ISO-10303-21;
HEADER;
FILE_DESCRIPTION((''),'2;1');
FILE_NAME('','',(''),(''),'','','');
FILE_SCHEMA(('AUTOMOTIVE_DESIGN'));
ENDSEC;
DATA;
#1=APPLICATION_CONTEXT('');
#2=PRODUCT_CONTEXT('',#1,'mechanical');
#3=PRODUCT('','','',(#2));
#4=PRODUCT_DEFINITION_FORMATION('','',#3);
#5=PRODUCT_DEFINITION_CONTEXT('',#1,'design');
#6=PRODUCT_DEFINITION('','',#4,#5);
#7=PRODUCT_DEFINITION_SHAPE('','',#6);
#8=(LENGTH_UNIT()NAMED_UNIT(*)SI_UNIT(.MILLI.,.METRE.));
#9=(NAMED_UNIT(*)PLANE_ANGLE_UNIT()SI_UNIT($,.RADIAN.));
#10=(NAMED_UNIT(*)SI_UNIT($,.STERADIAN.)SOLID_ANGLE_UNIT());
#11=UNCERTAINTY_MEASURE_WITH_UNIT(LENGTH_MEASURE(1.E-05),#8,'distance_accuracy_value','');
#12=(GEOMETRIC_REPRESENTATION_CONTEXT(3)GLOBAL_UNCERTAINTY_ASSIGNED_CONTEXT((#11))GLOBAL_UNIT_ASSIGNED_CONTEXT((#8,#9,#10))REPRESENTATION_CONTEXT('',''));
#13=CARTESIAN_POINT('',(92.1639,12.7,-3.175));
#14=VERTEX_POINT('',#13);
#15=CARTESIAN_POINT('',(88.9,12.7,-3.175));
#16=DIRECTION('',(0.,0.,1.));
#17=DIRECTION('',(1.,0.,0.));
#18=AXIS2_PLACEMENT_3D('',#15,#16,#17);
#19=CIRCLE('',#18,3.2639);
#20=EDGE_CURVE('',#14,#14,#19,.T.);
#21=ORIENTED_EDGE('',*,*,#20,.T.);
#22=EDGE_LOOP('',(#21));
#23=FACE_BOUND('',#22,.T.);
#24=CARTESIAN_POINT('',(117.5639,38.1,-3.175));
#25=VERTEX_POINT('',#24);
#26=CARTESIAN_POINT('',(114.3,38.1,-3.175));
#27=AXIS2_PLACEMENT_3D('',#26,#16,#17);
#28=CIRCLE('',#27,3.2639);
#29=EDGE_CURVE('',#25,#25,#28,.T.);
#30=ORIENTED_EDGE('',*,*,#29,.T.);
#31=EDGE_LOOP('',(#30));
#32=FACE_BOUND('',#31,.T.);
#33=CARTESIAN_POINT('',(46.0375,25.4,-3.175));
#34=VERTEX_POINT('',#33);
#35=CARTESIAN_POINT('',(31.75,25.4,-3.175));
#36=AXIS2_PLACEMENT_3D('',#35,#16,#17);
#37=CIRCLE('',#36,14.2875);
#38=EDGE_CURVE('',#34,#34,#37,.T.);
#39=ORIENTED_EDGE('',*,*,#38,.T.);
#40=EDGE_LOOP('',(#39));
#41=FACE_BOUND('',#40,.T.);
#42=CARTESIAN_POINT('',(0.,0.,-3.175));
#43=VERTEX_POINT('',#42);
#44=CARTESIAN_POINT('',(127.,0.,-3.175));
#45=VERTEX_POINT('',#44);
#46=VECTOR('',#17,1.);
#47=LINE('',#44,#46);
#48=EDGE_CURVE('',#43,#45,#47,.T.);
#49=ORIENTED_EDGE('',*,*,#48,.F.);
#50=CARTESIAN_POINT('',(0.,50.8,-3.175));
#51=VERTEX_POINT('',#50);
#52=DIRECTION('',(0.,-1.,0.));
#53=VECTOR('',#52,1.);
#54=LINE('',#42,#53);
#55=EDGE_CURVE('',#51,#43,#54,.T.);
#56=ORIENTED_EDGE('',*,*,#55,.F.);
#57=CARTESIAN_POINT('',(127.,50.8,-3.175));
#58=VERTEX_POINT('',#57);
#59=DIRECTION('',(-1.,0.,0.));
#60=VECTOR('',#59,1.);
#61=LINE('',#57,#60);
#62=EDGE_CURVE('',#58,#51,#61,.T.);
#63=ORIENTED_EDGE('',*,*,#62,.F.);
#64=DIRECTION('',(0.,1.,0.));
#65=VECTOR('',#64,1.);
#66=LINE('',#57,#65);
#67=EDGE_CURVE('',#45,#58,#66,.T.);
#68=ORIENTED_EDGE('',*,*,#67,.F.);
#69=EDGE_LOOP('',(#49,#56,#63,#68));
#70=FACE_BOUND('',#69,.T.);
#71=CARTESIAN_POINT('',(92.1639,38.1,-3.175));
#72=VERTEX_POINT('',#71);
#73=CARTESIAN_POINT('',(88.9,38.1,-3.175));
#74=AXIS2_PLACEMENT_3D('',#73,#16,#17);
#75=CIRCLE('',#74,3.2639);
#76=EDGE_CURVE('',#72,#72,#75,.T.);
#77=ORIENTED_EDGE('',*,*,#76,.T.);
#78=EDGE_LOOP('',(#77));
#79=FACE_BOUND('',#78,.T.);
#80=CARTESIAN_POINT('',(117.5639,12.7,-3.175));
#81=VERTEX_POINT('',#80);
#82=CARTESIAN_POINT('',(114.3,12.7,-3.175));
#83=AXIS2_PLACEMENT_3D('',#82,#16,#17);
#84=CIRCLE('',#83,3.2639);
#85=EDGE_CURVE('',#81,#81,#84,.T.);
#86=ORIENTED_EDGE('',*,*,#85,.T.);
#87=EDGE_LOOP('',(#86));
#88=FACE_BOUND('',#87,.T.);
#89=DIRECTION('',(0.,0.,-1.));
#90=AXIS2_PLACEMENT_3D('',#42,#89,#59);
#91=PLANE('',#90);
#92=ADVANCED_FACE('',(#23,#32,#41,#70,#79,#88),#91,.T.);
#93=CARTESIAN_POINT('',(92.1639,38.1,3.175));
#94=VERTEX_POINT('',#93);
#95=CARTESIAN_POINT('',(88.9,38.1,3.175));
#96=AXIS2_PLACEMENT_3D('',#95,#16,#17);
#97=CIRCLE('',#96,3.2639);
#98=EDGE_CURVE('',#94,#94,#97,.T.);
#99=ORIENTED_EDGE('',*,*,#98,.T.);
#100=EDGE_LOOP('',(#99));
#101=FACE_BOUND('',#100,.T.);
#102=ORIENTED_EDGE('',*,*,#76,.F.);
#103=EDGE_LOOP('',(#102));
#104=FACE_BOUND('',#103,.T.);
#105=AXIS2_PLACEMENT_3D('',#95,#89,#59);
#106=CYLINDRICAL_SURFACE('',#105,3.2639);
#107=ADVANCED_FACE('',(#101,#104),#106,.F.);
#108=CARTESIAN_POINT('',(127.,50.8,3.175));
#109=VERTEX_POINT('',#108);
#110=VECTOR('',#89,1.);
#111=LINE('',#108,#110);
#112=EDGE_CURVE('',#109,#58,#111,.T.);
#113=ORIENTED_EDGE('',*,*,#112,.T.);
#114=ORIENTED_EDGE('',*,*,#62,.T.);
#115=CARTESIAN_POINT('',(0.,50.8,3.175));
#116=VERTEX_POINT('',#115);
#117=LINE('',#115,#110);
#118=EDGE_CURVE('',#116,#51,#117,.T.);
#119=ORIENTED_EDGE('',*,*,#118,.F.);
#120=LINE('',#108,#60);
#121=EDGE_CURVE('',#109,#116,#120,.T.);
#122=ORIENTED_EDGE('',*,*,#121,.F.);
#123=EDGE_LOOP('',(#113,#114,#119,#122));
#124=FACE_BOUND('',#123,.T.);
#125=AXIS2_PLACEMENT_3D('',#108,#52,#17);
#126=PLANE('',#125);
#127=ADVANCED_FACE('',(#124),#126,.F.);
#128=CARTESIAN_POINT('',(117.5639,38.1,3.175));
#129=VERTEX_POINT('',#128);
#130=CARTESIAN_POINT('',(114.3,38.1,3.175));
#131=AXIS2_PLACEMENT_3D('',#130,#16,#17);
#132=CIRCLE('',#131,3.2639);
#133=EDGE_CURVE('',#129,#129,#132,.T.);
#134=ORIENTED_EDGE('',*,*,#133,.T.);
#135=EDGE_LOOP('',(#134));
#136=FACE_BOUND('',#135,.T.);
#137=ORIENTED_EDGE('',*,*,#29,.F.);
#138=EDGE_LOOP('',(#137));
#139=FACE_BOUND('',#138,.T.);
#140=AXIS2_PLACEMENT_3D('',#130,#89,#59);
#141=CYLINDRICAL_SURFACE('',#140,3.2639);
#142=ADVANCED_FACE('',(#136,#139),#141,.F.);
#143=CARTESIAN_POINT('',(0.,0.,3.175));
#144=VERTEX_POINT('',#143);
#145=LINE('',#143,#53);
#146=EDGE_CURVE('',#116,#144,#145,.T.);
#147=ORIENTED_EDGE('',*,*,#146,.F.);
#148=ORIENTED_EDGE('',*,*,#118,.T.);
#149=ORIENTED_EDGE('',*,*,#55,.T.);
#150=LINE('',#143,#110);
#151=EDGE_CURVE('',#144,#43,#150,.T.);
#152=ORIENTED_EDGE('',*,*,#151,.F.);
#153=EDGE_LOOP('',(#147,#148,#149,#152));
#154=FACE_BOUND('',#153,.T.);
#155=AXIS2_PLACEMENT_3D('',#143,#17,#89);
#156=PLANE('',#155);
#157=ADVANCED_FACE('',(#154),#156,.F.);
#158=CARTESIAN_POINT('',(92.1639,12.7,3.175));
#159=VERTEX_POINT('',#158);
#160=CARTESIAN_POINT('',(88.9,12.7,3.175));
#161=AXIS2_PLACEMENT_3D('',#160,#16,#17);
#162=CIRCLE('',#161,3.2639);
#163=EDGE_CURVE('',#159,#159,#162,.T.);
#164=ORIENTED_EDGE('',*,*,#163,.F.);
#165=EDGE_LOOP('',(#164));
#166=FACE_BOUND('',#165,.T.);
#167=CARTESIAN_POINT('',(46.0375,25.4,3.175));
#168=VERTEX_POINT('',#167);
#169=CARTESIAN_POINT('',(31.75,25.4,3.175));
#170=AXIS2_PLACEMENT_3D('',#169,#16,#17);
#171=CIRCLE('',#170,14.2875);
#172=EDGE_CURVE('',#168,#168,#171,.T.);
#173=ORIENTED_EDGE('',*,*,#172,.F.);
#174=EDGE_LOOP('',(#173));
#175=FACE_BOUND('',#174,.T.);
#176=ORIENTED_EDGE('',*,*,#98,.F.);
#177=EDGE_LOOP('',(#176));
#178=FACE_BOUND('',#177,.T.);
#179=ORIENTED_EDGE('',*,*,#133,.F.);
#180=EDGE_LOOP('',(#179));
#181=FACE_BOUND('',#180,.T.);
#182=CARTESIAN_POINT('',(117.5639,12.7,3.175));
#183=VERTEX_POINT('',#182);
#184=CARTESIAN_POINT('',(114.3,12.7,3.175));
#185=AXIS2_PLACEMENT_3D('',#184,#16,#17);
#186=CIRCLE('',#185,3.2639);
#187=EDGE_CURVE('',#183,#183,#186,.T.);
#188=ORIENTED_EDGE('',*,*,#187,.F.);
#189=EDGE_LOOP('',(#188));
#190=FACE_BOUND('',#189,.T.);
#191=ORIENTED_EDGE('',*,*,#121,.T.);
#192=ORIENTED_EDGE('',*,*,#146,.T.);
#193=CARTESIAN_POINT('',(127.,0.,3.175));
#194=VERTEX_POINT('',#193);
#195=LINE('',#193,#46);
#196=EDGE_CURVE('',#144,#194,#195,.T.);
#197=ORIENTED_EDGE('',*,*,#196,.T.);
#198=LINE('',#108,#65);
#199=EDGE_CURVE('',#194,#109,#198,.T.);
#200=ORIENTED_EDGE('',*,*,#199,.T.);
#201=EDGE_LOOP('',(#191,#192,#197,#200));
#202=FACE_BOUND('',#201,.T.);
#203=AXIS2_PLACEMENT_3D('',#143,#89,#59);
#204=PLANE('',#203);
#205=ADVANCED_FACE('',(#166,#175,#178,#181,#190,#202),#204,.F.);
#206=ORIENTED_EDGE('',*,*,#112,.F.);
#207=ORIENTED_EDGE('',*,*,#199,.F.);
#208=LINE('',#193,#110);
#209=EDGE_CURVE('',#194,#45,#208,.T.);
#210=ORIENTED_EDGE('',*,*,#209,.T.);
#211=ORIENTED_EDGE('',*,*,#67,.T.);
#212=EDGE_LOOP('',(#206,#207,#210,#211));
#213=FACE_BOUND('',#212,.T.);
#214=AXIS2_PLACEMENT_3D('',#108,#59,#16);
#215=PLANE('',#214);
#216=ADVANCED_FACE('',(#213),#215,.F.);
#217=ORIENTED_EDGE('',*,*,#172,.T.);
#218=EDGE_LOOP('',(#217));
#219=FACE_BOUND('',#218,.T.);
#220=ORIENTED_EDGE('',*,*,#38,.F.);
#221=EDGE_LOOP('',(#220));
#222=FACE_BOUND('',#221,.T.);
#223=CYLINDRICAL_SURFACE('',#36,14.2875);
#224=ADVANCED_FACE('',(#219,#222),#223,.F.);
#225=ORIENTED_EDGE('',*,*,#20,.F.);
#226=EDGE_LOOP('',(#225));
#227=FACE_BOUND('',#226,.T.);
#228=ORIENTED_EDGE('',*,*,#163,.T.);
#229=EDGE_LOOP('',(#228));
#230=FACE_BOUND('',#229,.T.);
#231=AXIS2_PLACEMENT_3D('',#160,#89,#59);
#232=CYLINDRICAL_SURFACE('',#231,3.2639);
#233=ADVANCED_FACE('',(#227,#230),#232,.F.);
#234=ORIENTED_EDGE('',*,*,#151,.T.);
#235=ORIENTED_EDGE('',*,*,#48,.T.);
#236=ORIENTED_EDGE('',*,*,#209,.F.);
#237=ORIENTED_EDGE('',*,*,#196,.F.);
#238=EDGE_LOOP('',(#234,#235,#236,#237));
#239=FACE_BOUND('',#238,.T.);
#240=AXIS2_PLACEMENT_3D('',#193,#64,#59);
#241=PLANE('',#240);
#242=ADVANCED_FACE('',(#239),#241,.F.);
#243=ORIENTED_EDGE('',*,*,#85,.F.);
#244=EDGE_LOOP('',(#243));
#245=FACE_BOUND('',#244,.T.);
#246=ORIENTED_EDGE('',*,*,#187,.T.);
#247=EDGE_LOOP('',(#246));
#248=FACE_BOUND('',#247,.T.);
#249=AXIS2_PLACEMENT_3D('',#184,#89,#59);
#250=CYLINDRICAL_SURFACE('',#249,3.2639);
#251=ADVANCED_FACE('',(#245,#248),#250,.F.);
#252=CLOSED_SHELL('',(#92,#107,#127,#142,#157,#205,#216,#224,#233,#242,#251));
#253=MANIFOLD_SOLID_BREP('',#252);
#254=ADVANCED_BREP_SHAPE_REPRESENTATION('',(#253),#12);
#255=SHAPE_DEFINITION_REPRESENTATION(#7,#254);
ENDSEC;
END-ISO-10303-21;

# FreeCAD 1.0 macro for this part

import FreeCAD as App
import Part
import Sketcher
from FreeCAD import Vector
Q = App.Units.Quantity


def add_polygon(sketch, points):
    """Adds a closed chain of lines whose ends are joined by coincident constraints."""
    first, n = sketch.GeometryCount, len(points)
    for a, b in zip(points, points[1:] + points[:1]):
        sketch.addGeometry(Part.LineSegment(App.Vector(*a, 0), App.Vector(*b, 0)), False)
    for i in range(n):
        sketch.addConstraint(Sketcher.Constraint("Coincident", first + i, 2, first + (i + 1) % n, 1))

doc = App.newDocument("Part")
body = doc.addObject("PartDesign::Body", "Body")

# Sketch on XY plane
sketch1 = body.newObject("Sketcher::SketchObject", "Sketch")
sketch1.AttachmentSupport = (doc.getObject("XY_Plane"), [""])
sketch1.MapMode = "FlatFace"
add_polygon(sketch1, [(0, 50.8), (0, 0), (127, 0), (127, 50.8)])  # lines 0-3
sketch1.addGeometry(Part.Circle(Vector(88.9, 12.7, 0), Vector(0, 0, 1), 3.3), False)  # 4
sketch1.addGeometry(Part.Circle(Vector(114.3, 12.7, 0), Vector(0, 0, 1), 3.3), False)  # 5
sketch1.addGeometry(Part.Circle(Vector(88.9, 38.1, 0), Vector(0, 0, 1), 3.3), False)  # 6
sketch1.addGeometry(Part.Circle(Vector(114.3, 38.1, 0), Vector(0, 0, 1), 3.3), False)  # 7
sketch1.addConstraint([
    Sketcher.Constraint("Vertical", 0),
    Sketcher.Constraint("Horizontal", 1),
    Sketcher.Constraint("Vertical", 2),
    Sketcher.Constraint("Horizontal", 3),
    Sketcher.Constraint("Coincident", 0, 2, -1, 1),
    Sketcher.Constraint("Equal", 4, 5),
    Sketcher.Constraint("Equal", 5, 6),
    Sketcher.Constraint("Equal", 6, 7),
    Sketcher.Constraint("Horizontal", 4, 3, 5, 3),
    Sketcher.Constraint("Horizontal", 6, 3, 7, 3),
    Sketcher.Constraint("Vertical", 4, 3, 6, 3),
    Sketcher.Constraint("Vertical", 5, 3, 7, 3),
    Sketcher.Constraint("DistanceX", 1, 1, 1, 2, Q("5 in")),
    Sketcher.Constraint("DistanceY", 0, 2, 0, 1, Q("2 in")),
    Sketcher.Constraint("Diameter", 4, Q("0.257 in")),
    Sketcher.Constraint("DistanceX", 4, 3, 5, 3, Q("1 in")),
    Sketcher.Constraint("DistanceY", 4, 3, 6, 3, Q("1 in")),
    Sketcher.Constraint("DistanceX", -1, 1, 4, 3, Q("3.5 in")),
    Sketcher.Constraint("DistanceY", -1, 1, 4, 3, Q("0.5 in")),
])
pad1 = body.newObject("PartDesign::Pad", "Pad")
pad1.Profile = sketch1
pad1.Length = Q("0.25 in")
pad1.Midplane = True

# Sketch on XY plane
sketch2 = body.newObject("Sketcher::SketchObject", "Sketch001")
sketch2.AttachmentSupport = (doc.getObject("XY_Plane"), [""])
sketch2.MapMode = "FlatFace"
sketch2.AttachmentOffset = App.Placement(Vector(0, 0, 0.125 * 25.4), App.Rotation())
sketch2.addGeometry(Part.Circle(Vector(32, 25, 0), Vector(0, 0, 1), 14), False)
sketch2.addConstraint([
    Sketcher.Constraint("Diameter", 0, Q("1.125 in")),
    Sketcher.Constraint("DistanceY", -1, 1, 0, 3, Q("1 in")),
    Sketcher.Constraint("DistanceX", -1, 1, 0, 3, Q("1.25 in")),
])
pocket1 = body.newObject("PartDesign::Pocket", "Pocket")
pocket1.Profile = sketch2
pocket1.Type = "ThroughAll"

doc.recompute()
